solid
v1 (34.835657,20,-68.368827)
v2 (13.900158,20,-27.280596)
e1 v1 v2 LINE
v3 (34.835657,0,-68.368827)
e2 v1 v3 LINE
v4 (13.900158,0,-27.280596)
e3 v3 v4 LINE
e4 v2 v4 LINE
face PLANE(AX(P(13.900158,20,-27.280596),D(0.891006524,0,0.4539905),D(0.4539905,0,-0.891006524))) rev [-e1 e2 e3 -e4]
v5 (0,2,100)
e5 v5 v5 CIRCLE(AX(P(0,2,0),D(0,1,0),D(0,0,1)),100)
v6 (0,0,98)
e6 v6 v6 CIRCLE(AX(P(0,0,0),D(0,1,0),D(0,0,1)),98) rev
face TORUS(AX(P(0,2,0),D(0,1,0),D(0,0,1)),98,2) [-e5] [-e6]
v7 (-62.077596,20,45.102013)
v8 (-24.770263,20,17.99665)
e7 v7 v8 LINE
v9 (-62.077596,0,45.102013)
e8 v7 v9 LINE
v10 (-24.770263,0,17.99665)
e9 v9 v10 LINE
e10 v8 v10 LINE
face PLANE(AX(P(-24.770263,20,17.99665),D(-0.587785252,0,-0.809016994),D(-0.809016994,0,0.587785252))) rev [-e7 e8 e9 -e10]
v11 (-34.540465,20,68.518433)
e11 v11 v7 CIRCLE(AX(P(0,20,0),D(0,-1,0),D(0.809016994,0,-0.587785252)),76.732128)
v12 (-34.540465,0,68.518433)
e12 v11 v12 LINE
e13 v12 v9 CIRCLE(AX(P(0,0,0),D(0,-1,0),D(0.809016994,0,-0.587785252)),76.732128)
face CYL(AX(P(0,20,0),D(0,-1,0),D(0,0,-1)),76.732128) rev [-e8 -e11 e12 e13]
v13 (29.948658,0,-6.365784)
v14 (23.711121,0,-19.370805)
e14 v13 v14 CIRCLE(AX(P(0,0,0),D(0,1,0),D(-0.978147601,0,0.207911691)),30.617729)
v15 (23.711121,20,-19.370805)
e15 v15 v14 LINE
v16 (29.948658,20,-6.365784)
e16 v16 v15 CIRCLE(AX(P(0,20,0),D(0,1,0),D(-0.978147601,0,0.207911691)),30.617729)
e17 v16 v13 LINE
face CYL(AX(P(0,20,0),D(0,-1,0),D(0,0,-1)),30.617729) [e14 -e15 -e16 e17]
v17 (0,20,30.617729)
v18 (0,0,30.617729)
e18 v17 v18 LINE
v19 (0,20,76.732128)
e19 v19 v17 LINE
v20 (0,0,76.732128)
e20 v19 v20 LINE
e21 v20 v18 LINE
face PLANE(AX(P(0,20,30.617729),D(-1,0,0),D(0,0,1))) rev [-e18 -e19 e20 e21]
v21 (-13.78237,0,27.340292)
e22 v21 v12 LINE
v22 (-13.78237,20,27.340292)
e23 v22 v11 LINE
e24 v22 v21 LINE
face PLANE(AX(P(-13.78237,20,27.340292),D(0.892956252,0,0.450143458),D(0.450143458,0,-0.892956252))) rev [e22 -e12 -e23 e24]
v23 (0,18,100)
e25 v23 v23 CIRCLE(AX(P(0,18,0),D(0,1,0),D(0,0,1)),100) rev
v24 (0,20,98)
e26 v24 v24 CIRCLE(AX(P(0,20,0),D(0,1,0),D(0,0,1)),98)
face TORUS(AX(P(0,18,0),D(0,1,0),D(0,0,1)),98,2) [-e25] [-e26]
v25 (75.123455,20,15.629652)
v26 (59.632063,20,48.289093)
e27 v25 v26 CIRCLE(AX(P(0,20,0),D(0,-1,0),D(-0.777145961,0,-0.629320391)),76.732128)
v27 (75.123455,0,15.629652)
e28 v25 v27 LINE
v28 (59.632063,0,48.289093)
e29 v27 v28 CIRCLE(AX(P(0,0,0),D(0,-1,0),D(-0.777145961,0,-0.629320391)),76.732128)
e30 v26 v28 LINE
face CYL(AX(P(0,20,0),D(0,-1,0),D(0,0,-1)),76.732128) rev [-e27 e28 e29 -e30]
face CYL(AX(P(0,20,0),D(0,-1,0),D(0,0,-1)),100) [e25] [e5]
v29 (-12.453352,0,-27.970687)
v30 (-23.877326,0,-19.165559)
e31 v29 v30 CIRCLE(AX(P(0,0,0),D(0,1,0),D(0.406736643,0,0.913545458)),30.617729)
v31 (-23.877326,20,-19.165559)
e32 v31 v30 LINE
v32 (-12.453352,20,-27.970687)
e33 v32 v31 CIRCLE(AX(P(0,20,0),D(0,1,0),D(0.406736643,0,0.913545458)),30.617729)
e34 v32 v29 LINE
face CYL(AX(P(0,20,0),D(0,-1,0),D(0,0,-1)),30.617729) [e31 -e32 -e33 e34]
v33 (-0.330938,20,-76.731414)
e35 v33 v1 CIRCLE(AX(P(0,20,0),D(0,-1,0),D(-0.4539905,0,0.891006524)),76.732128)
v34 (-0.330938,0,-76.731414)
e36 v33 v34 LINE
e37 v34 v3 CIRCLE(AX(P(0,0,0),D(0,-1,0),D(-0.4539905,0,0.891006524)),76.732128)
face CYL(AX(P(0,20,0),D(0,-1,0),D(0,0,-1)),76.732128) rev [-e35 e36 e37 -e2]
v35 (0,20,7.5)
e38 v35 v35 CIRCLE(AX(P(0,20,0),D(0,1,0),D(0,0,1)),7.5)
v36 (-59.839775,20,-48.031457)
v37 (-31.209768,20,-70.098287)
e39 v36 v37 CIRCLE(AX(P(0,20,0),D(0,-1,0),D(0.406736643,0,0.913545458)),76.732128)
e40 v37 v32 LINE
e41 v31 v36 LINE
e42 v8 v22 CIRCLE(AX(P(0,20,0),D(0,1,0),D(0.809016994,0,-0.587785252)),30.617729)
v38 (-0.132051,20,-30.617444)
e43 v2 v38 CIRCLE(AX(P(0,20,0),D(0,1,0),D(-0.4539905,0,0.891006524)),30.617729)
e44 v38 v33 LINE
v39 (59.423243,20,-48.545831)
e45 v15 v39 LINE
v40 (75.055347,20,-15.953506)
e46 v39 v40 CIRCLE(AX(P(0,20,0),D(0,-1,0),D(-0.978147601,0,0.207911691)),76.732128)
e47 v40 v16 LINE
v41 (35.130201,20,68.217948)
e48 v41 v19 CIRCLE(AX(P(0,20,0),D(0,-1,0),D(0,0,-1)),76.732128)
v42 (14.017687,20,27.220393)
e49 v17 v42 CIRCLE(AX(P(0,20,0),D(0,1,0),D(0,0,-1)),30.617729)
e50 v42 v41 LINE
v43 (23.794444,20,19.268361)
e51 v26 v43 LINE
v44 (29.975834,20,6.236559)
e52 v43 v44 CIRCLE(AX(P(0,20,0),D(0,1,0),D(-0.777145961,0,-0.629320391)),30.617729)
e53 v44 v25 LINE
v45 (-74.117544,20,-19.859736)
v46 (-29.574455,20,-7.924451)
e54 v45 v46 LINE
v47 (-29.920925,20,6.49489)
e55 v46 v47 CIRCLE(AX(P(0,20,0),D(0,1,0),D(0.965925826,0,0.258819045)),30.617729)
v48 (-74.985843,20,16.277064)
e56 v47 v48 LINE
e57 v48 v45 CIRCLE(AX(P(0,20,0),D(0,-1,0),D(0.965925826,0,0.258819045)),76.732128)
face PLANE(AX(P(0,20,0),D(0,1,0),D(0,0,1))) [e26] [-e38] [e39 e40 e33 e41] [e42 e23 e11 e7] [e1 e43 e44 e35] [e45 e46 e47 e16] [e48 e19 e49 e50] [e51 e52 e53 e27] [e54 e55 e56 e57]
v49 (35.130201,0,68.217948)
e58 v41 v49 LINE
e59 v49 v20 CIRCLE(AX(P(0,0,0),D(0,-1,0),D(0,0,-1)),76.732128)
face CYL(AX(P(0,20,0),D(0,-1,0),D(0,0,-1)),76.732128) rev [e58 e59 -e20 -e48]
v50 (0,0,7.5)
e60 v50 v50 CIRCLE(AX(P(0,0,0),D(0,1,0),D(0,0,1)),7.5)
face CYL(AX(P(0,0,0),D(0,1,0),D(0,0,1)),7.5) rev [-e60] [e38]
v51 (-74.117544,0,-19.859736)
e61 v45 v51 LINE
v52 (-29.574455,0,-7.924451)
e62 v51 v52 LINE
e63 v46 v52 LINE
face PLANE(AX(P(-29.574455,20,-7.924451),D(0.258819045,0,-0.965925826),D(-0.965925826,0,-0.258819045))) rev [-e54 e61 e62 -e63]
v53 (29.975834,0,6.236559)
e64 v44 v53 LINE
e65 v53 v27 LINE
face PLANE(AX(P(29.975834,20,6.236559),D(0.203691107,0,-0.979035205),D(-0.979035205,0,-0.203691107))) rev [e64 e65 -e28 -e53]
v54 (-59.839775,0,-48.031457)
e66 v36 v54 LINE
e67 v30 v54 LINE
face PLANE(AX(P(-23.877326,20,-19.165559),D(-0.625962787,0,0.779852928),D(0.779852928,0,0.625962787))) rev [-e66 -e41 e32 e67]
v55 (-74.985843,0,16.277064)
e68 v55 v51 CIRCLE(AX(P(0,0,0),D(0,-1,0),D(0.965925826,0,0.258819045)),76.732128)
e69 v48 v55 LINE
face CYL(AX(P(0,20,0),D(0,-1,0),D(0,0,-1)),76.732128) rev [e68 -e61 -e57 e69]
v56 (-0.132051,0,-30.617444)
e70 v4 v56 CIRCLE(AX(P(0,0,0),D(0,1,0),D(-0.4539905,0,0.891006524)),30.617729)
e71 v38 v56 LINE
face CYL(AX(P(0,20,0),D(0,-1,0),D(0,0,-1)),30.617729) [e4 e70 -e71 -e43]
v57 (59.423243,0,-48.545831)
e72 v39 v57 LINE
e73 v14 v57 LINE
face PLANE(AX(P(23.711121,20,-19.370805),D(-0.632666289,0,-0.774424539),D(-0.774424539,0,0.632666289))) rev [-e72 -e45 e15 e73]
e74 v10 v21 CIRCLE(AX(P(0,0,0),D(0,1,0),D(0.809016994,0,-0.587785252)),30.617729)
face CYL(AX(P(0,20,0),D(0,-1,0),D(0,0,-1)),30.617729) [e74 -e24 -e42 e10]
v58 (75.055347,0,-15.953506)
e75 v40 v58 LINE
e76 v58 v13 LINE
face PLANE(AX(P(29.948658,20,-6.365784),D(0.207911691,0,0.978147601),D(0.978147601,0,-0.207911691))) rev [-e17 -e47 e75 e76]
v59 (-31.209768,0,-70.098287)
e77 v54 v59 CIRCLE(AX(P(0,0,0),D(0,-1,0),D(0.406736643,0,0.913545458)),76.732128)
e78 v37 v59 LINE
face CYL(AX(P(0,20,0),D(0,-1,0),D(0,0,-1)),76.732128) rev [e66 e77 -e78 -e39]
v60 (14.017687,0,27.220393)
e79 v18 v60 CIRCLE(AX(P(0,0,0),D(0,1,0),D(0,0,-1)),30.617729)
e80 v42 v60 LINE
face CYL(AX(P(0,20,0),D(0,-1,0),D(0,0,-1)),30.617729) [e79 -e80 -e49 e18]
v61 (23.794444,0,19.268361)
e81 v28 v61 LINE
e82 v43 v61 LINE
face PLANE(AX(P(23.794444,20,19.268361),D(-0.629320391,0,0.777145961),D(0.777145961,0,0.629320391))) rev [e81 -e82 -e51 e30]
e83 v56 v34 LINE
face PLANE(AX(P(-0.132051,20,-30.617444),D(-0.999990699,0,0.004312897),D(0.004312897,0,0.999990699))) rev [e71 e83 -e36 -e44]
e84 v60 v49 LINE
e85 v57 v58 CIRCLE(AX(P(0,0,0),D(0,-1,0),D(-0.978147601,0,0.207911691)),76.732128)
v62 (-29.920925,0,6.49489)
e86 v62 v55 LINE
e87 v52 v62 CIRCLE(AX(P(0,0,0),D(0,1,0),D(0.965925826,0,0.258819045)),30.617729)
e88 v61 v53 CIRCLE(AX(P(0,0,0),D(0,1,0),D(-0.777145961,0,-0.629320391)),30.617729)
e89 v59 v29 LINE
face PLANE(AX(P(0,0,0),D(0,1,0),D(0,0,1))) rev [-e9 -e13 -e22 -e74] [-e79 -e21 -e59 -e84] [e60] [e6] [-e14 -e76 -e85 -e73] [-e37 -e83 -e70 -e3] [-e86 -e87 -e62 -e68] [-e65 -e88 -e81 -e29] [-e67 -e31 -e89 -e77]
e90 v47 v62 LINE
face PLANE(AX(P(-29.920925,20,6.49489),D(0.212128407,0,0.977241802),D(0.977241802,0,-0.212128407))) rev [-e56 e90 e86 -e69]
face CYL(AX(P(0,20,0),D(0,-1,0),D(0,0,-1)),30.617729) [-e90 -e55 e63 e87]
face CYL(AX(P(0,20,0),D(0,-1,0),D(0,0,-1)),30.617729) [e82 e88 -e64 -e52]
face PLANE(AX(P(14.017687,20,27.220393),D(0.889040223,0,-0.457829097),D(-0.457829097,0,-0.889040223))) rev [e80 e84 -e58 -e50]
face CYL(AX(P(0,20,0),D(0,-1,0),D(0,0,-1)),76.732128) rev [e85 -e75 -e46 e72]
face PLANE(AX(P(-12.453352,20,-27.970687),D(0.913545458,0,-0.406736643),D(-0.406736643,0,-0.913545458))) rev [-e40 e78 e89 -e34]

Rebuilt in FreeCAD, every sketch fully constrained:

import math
import FreeCAD as App
import Part
import Sketcher


def edges_at(feature, points):
    """Names of the edges that pass closest to the given points."""
    edges = feature.Shape.Edges
    near = lambda p: min(range(len(edges)), key=lambda i: edges[i].distToShape(Part.Vertex(*p))[0])
    return sorted({f"Edge{near(p) + 1}" for p in points})

doc = App.newDocument("Part")
body = doc.addObject("PartDesign::Body", "Body")

# Sketch on XZ plane
sketch1 = body.newObject("Sketcher::SketchObject", "Sketch")
sketch1.AttachmentSupport = (doc.getObject("XZ_Plane"), [""])
sketch1.MapMode = "FlatFace"
sketch1.addGeometry(Part.Circle(App.Vector(0, 0, 0), App.Vector(0, 0, 1), 100), False)
sketch1.addConstraint([
    Sketcher.Constraint("Coincident", 0, 3, -1, 1),
    Sketcher.Constraint("Diameter", 0, 200.0),
])
pad1 = body.newObject("PartDesign::Pad", "Pad")
pad1.Profile = sketch1
pad1.Length = 20
pad1.Reversed = True
doc.recompute()

fillet = body.newObject("PartDesign::Fillet", "Fillet")
fillet.Base = (pad1, edges_at(pad1, [(-100, 0, 0), (-100, 20, 0)]))
fillet.Radius = 2

# Sketch on XZ plane
sketch2 = body.newObject("Sketcher::SketchObject", "Sketch001")
sketch2.AttachmentSupport = (doc.getObject("XZ_Plane"), [""])
sketch2.MapMode = "FlatFace"
sketch2.AttachmentOffset = App.Placement(App.Vector(0, 0, -20), App.Rotation())
sketch2.addGeometry(Part.Circle(App.Vector(0, 0, 0), App.Vector(0, 0, 1), 7.5), False)
sketch2.addConstraint([
    Sketcher.Constraint("Coincident", 0, 3, -1, 1),
    Sketcher.Constraint("Diameter", 0, 15.0),
])
pocket1 = body.newObject("PartDesign::Pocket", "Pocket")
pocket1.Profile = sketch2
pocket1.Type = "ThroughAll"
pocket1.Reversed = True

# Sketch on XZ plane
sketch3 = body.newObject("Sketcher::SketchObject", "Sketch002")
sketch3.AttachmentSupport = (doc.getObject("XZ_Plane"), [""])
sketch3.MapMode = "FlatFace"
sketch3.addGeometry([
    Part.LineSegment(App.Vector(0, 76.732128, 0), App.Vector(0, 30.617729, 0)),
    Part.ArcOfCircle(Part.Circle(App.Vector(0, 0, 0), App.Vector(0, 0, 1), 30.617729), math.radians(62.752888), math.radians(90)),
    Part.LineSegment(App.Vector(14.017687, 27.220393, 0), App.Vector(35.130201, 68.217948, 0)),
    Part.ArcOfCircle(Part.Circle(App.Vector(0, 0, 0), App.Vector(0, 0, 1), 76.732128), math.radians(62.752888), math.radians(90)),
], False)
sketch3.addConstraint([
    Sketcher.Constraint("Coincident", 0, 2, 1, 2),
    Sketcher.Constraint("Coincident", 1, 1, 2, 1),
    Sketcher.Constraint("Coincident", 2, 2, 3, 1),
    Sketcher.Constraint("Coincident", 3, 2, 0, 1),
    Sketcher.Constraint("Vertical", 0),
    Sketcher.Constraint("Coincident", 1, 3, -1, 1),
    Sketcher.Constraint("Coincident", 3, 3, -1, 1),
    Sketcher.Constraint("PointOnObject", 0, 2, -2),
    Sketcher.Constraint("Radius", 1, 30.617729),
    Sketcher.Constraint("Radius", 3, 76.732128),
    Sketcher.Constraint("DistanceX", -1, 1, 2, 2, 35.130201),
    Sketcher.Constraint("DistanceX", -1, 1, 1, 1, 14.017687),
])
pocket2 = body.newObject("PartDesign::Pocket", "Pocket001")
pocket2.Profile = sketch3
pocket2.Type = "ThroughAll"
doc.recompute()

polarpattern = body.newObject("PartDesign::PolarPattern", "PolarPattern")
polarpattern.Originals = [pocket2]
polarpattern.Axis = (doc.getObject("Y_Axis"), [""])
polarpattern.Angle = 306
polarpattern.Occurrences = 7
body.Tip = polarpattern

doc.recompute()
